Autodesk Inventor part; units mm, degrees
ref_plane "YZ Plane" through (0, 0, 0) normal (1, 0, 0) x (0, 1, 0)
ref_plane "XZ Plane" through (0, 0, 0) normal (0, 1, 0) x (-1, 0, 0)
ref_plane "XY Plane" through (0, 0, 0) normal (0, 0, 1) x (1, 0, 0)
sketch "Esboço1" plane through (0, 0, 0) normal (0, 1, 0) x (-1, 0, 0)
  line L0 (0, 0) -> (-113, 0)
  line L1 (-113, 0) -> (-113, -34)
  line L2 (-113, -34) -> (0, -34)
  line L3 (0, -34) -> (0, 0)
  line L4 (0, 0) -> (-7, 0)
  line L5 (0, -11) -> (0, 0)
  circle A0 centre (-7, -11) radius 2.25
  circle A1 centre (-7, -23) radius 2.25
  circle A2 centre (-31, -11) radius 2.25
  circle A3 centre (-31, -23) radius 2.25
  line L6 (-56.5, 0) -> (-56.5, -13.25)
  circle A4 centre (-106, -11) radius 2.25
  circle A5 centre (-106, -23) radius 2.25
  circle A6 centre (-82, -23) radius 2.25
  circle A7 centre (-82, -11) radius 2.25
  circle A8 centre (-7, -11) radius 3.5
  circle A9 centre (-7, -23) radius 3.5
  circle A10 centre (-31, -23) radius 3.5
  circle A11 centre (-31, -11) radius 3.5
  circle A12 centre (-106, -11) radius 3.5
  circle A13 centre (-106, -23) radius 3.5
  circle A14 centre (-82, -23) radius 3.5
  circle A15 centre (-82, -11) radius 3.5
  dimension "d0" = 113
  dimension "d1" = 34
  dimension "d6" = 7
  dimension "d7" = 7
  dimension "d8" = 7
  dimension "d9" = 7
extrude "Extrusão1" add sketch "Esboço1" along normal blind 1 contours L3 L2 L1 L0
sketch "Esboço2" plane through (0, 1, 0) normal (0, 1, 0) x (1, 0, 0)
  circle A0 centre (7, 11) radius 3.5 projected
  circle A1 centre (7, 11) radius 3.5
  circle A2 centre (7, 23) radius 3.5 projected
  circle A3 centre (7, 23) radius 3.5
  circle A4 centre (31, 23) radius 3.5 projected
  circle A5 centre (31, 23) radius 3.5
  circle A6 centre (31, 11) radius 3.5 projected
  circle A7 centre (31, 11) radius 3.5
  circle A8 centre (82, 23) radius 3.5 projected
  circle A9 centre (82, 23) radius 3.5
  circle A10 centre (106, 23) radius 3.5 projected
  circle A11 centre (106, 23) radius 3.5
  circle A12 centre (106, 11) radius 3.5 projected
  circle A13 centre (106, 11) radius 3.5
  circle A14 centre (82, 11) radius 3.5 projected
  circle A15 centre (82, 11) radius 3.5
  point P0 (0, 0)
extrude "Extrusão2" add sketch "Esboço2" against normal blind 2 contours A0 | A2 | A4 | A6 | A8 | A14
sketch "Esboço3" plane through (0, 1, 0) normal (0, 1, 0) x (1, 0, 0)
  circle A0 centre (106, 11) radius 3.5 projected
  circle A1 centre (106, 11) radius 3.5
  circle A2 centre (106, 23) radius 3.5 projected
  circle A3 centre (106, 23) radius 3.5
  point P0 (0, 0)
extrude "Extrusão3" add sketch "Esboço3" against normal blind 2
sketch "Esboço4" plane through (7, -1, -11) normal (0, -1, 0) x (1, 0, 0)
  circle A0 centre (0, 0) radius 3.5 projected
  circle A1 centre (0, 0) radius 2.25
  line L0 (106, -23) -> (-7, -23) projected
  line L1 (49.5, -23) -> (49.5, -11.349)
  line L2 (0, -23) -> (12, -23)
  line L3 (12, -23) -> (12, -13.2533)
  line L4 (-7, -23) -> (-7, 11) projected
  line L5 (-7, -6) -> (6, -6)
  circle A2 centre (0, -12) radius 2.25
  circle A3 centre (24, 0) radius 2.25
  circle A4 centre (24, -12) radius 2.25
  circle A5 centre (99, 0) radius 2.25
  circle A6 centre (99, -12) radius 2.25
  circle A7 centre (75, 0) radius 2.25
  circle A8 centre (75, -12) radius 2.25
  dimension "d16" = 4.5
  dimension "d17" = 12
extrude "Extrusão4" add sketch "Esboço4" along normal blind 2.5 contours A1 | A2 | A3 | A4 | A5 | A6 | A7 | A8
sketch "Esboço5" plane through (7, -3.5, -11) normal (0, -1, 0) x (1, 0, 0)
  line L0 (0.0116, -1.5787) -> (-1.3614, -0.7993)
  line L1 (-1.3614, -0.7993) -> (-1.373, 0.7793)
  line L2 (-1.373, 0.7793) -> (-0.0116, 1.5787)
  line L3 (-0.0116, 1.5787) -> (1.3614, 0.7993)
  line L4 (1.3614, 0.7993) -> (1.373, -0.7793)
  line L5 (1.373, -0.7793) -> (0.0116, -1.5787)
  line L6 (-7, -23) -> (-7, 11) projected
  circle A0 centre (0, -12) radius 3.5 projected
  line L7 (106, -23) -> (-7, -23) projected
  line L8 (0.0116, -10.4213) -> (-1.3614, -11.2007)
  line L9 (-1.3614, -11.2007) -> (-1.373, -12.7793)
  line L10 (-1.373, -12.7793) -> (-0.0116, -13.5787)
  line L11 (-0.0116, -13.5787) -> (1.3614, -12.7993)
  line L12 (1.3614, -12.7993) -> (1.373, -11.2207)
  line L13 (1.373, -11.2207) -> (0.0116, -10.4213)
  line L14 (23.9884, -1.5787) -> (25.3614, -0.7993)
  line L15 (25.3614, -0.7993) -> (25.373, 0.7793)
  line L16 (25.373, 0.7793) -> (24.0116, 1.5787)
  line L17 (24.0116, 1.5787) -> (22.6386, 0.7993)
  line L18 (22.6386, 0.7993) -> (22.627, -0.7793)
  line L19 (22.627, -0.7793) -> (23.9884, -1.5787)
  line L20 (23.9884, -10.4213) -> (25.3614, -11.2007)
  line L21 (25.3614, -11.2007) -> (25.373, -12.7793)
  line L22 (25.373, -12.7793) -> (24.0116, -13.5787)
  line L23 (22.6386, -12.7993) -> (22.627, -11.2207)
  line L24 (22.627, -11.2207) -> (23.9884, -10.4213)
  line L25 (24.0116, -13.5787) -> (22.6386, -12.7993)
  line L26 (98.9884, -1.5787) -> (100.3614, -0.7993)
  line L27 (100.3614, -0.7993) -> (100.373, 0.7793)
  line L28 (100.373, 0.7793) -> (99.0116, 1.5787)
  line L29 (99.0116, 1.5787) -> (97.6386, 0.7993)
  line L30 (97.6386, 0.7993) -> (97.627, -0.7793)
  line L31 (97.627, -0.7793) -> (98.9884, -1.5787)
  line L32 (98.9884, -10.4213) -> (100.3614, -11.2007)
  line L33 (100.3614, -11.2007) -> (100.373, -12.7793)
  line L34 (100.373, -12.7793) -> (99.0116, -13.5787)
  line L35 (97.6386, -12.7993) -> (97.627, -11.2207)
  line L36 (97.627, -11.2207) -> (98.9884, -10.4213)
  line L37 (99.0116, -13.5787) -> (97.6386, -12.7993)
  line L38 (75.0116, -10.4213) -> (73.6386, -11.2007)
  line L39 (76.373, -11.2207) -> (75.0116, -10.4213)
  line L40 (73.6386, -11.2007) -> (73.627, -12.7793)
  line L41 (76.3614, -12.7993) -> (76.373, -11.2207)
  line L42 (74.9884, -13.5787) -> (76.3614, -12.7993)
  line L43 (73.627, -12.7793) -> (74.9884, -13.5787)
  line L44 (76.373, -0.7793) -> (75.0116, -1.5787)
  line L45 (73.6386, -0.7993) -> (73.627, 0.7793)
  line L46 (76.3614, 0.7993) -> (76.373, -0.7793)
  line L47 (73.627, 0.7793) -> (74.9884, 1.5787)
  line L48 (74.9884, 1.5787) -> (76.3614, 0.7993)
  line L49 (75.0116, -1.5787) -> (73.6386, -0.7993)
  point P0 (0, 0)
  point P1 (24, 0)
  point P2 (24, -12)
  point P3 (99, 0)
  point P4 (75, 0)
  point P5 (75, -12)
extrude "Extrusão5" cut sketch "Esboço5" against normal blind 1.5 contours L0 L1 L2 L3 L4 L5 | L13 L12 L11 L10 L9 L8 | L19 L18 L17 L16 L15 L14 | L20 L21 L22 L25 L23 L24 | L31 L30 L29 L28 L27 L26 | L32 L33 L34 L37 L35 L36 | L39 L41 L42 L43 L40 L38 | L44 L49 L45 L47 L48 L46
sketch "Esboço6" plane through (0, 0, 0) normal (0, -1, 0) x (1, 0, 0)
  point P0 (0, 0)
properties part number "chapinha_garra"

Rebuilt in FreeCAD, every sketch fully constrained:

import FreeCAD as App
import Part
import Sketcher
Q = App.Units.Quantity

doc = App.newDocument("Part")
body = doc.addObject("PartDesign::Body", "Body")

# Sketch on XZ plane
sketch1 = body.newObject("Sketcher::SketchObject", "Sketch")
sketch1.AttachmentSupport = (doc.getObject("XZ_Plane"), [""])
sketch1.MapMode = "FlatFace"
sketch1.addGeometry([
    Part.LineSegment(App.Vector(0, -34, 0), App.Vector(0, 0, 0)),  # 0
    Part.LineSegment(App.Vector(0, 0, 0), App.Vector(113, 0, 0)),  # 1
    Part.LineSegment(App.Vector(113, 0, 0), App.Vector(113, -34, 0)),  # 2
    Part.LineSegment(App.Vector(113, -34, 0), App.Vector(0, -34, 0)),  # 3
    Part.Circle(App.Vector(106, -23, 0), App.Vector(0, 0, 1), 3.5),  # 4
    Part.Circle(App.Vector(82, -23, 0), App.Vector(0, 0, 1), 3.5),  # 5
    Part.Circle(App.Vector(31, -23, 0), App.Vector(0, 0, 1), 3.5),  # 6
    Part.Circle(App.Vector(7, -23, 0), App.Vector(0, 0, 1), 3.5),  # 7
    Part.Circle(App.Vector(106, -11, 0), App.Vector(0, 0, 1), 3.5),  # 8
    Part.Circle(App.Vector(82, -11, 0), App.Vector(0, 0, 1), 3.5),  # 9
    Part.Circle(App.Vector(31, -11, 0), App.Vector(0, 0, 1), 3.5),  # 10
    Part.Circle(App.Vector(7, -11, 0), App.Vector(0, 0, 1), 3.5),  # 11
], False)
sketch1.addConstraint([
    Sketcher.Constraint("Coincident", 0, 2, 1, 1),
    Sketcher.Constraint("Coincident", 1, 2, 2, 1),
    Sketcher.Constraint("Coincident", 2, 2, 3, 1),
    Sketcher.Constraint("Coincident", 3, 2, 0, 1),
    Sketcher.Constraint("Vertical", 0),
    Sketcher.Constraint("Horizontal", 1),
    Sketcher.Constraint("Vertical", 2),
    Sketcher.Constraint("Horizontal", 3),
    Sketcher.Constraint("Coincident", 0, 2, -1, 1),
    Sketcher.Constraint("Equal", 4, 5),
    Sketcher.Constraint("Equal", 5, 6),
    Sketcher.Constraint("Equal", 6, 7),
    Sketcher.Constraint("Equal", 7, 8),
    Sketcher.Constraint("Equal", 8, 9),
    Sketcher.Constraint("Equal", 9, 10),
    Sketcher.Constraint("Equal", 10, 11),
    Sketcher.Constraint("Horizontal", 4, 3, 5, 3),
    Sketcher.Constraint("Horizontal", 5, 3, 6, 3),
    Sketcher.Constraint("Horizontal", 6, 3, 7, 3),
    Sketcher.Constraint("Horizontal", 8, 3, 9, 3),
    Sketcher.Constraint("Horizontal", 9, 3, 10, 3),
    Sketcher.Constraint("Horizontal", 10, 3, 11, 3),
    Sketcher.Constraint("Vertical", 4, 3, 8, 3),
    Sketcher.Constraint("Vertical", 5, 3, 9, 3),
    Sketcher.Constraint("Vertical", 6, 3, 10, 3),
    Sketcher.Constraint("Vertical", 7, 3, 11, 3),
    Sketcher.Constraint("Diameter", 4, Q("7 mm")),
    Sketcher.Constraint("DistanceX", 1, 1, 1, 2, Q("113 mm")),
    Sketcher.Constraint("DistanceY", 0, 1, 0, 2, Q("34 mm")),
    Sketcher.Constraint("DistanceX", -1, 1, 7, 3, Q("7 mm")),
    Sketcher.Constraint("DistanceX", 8, 3, 1, 2, Q("7 mm")),
    Sketcher.Constraint("DistanceY", 4, 3, -1, 1, Q("23 mm")),
    Sketcher.Constraint("DistanceX", -1, 1, 5, 3, Q("82 mm")),
    Sketcher.Constraint("DistanceX", -1, 1, 6, 3, Q("31 mm")),
    Sketcher.Constraint("DistanceY", 8, 3, -1, 1, Q("11 mm")),
])
pad1 = body.newObject("PartDesign::Pad", "Pad")
pad1.Profile = sketch1
pad1.Length = 1
pad1.Reversed = True

# Sketch on XZ plane
sketch2 = body.newObject("Sketcher::SketchObject", "Sketch001")
sketch2.AttachmentSupport = (doc.getObject("XZ_Plane"), [""])
sketch2.MapMode = "FlatFace"
sketch2.AttachmentOffset = App.Placement(App.Vector(0, 0, -1), App.Rotation())
sketch2.addGeometry([
    Part.Circle(App.Vector(7, -11, 0), App.Vector(0, 0, 1), 3.5),  # 0
    Part.Circle(App.Vector(7, -23, 0), App.Vector(0, 0, 1), 3.5),  # 1
    Part.Circle(App.Vector(31, -23, 0), App.Vector(0, 0, 1), 3.5),  # 2
    Part.Circle(App.Vector(31, -11, 0), App.Vector(0, 0, 1), 3.5),  # 3
    Part.Circle(App.Vector(82, -23, 0), App.Vector(0, 0, 1), 3.5),  # 4
    Part.Circle(App.Vector(82, -11, 0), App.Vector(0, 0, 1), 3.5),  # 5
], False)
sketch2.addConstraint([
    Sketcher.Constraint("Equal", 0, 1),
    Sketcher.Constraint("Equal", 1, 2),
    Sketcher.Constraint("Equal", 2, 3),
    Sketcher.Constraint("Equal", 3, 4),
    Sketcher.Constraint("Equal", 4, 5),
    Sketcher.Constraint("Horizontal", 1, 3, 2, 3),
    Sketcher.Constraint("Horizontal", 0, 3, 3, 3),
    Sketcher.Constraint("Horizontal", 2, 3, 4, 3),
    Sketcher.Constraint("Horizontal", 3, 3, 5, 3),
    Sketcher.Constraint("Vertical", 0, 3, 1, 3),
    Sketcher.Constraint("Vertical", 2, 3, 3, 3),
    Sketcher.Constraint("Vertical", 4, 3, 5, 3),
    Sketcher.Constraint("Diameter", 0, Q("7 mm")),
    Sketcher.Constraint("DistanceX", -1, 1, 0, 3, Q("7 mm")),
    Sketcher.Constraint("DistanceY", 0, 3, -1, 1, Q("11 mm")),
    Sketcher.Constraint("DistanceY", 1, 3, -1, 1, Q("23 mm")),
    Sketcher.Constraint("DistanceX", -1, 1, 2, 3, Q("31 mm")),
    Sketcher.Constraint("DistanceX", -1, 1, 4, 3, Q("82 mm")),
])
pad2 = body.newObject("PartDesign::Pad", "Pad001")
pad2.Profile = sketch2
pad2.Length = 2

# Sketch on XZ plane
sketch3 = body.newObject("Sketcher::SketchObject", "Sketch002")
sketch3.AttachmentSupport = (doc.getObject("XZ_Plane"), [""])
sketch3.MapMode = "FlatFace"
sketch3.AttachmentOffset = App.Placement(App.Vector(0, 0, -1), App.Rotation())
sketch3.addGeometry([
    Part.Circle(App.Vector(106, -11, 0), App.Vector(0, 0, 1), 3.5),
    Part.Circle(App.Vector(106, -23, 0), App.Vector(0, 0, 1), 3.5),
], False)
sketch3.addConstraint([
    Sketcher.Constraint("Equal", 0, 1),
    Sketcher.Constraint("Vertical", 0, 3, 1, 3),
    Sketcher.Constraint("Diameter", 0, Q("7 mm")),
    Sketcher.Constraint("DistanceX", -1, 1, 0, 3, Q("106 mm")),
    Sketcher.Constraint("DistanceY", 0, 3, -1, 1, Q("11 mm")),
    Sketcher.Constraint("DistanceY", 1, 3, -1, 1, Q("23 mm")),
])
pad3 = body.newObject("PartDesign::Pad", "Pad002")
pad3.Profile = sketch3
pad3.Length = 2

# Sketch on XZ plane
sketch4 = body.newObject("Sketcher::SketchObject", "Sketch003")
sketch4.AttachmentSupport = (doc.getObject("XZ_Plane"), [""])
sketch4.MapMode = "FlatFace"
sketch4.AttachmentOffset = App.Placement(App.Vector(0, 0, 1), App.Rotation())
sketch4.addGeometry([
    Part.Circle(App.Vector(7, -11, 0), App.Vector(0, 0, 1), 2.2),  # 0
    Part.Circle(App.Vector(7, -23, 0), App.Vector(0, 0, 1), 2.2),  # 1
    Part.Circle(App.Vector(31, -11, 0), App.Vector(0, 0, 1), 2.2),  # 2
    Part.Circle(App.Vector(31, -23, 0), App.Vector(0, 0, 1), 2.2),  # 3
    Part.Circle(App.Vector(106, -11, 0), App.Vector(0, 0, 1), 2.2),  # 4
    Part.Circle(App.Vector(106, -23, 0), App.Vector(0, 0, 1), 2.2),  # 5
    Part.Circle(App.Vector(82, -11, 0), App.Vector(0, 0, 1), 2.2),  # 6
    Part.Circle(App.Vector(82, -23, 0), App.Vector(0, 0, 1), 2.2),  # 7
], False)
sketch4.addConstraint([
    Sketcher.Constraint("Equal", 0, 1),
    Sketcher.Constraint("Equal", 1, 2),
    Sketcher.Constraint("Equal", 2, 3),
    Sketcher.Constraint("Equal", 3, 4),
    Sketcher.Constraint("Equal", 4, 5),
    Sketcher.Constraint("Equal", 5, 6),
    Sketcher.Constraint("Equal", 6, 7),
    Sketcher.Constraint("Horizontal", 0, 3, 2, 3),
    Sketcher.Constraint("Horizontal", 1, 3, 3, 3),
    Sketcher.Constraint("Horizontal", 2, 3, 4, 3),
    Sketcher.Constraint("Horizontal", 3, 3, 5, 3),
    Sketcher.Constraint("Horizontal", 4, 3, 6, 3),
    Sketcher.Constraint("Horizontal", 5, 3, 7, 3),
    Sketcher.Constraint("Vertical", 0, 3, 1, 3),
    Sketcher.Constraint("Vertical", 2, 3, 3, 3),
    Sketcher.Constraint("Vertical", 4, 3, 5, 3),
    Sketcher.Constraint("Vertical", 6, 3, 7, 3),
    Sketcher.Constraint("Diameter", 0, Q("4.5 mm")),
    Sketcher.Constraint("DistanceY", 1, 3, 0, 3, Q("12 mm")),
    Sketcher.Constraint("DistanceX", -1, 1, 0, 3, Q("7 mm")),
    Sketcher.Constraint("DistanceY", 0, 3, -1, 1, Q("11 mm")),
    Sketcher.Constraint("DistanceX", -1, 1, 2, 3, Q("31 mm")),
    Sketcher.Constraint("DistanceX", -1, 1, 4, 3, Q("106 mm")),
    Sketcher.Constraint("DistanceX", -1, 1, 6, 3, Q("82 mm")),
])
pad4 = body.newObject("PartDesign::Pad", "Pad003")
pad4.Profile = sketch4
pad4.Length = 2.5

# Sketch on XZ plane
sketch5 = body.newObject("Sketcher::SketchObject", "Sketch004")
sketch5.AttachmentSupport = (doc.getObject("XZ_Plane"), [""])
sketch5.MapMode = "FlatFace"
sketch5.AttachmentOffset = App.Placement(App.Vector(0, 0, 3.5), App.Rotation())
sketch5.addGeometry([
    Part.LineSegment(App.Vector(5.6386, -11.7993, 0), App.Vector(7.0116, -12.5787, 0)),  # 0
    Part.LineSegment(App.Vector(7.0116, -12.5787, 0), App.Vector(8.373, -11.7793, 0)),  # 1
    Part.LineSegment(App.Vector(8.373, -11.7793, 0), App.Vector(8.3614, -10.2007, 0)),  # 2
    Part.LineSegment(App.Vector(8.3614, -10.2007, 0), App.Vector(6.9884, -9.4213, 0)),  # 3
    Part.LineSegment(App.Vector(6.9884, -9.4213, 0), App.Vector(5.627, -10.2207, 0)),  # 4
    Part.LineSegment(App.Vector(5.627, -10.2207, 0), App.Vector(5.6386, -11.7993, 0)),  # 5
    Part.LineSegment(App.Vector(8.373, -22.2207, 0), App.Vector(7.0116, -21.4213, 0)),  # 6
    Part.LineSegment(App.Vector(7.0116, -21.4213, 0), App.Vector(5.6386, -22.2007, 0)),  # 7
    Part.LineSegment(App.Vector(5.6386, -22.2007, 0), App.Vector(5.627, -23.7793, 0)),  # 8
    Part.LineSegment(App.Vector(5.627, -23.7793, 0), App.Vector(6.9884, -24.5787, 0)),  # 9
    Part.LineSegment(App.Vector(6.9884, -24.5787, 0), App.Vector(8.3614, -23.7993, 0)),  # 10
    Part.LineSegment(App.Vector(8.3614, -23.7993, 0), App.Vector(8.373, -22.2207, 0)),  # 11
    Part.LineSegment(App.Vector(29.627, -11.7793, 0), App.Vector(30.9884, -12.5787, 0)),  # 12
    Part.LineSegment(App.Vector(30.9884, -12.5787, 0), App.Vector(32.3614, -11.7993, 0)),  # 13
    Part.LineSegment(App.Vector(32.3614, -11.7993, 0), App.Vector(32.373, -10.2207, 0)),  # 14
    Part.LineSegment(App.Vector(32.373, -10.2207, 0), App.Vector(31.0116, -9.4213, 0)),  # 15
    Part.LineSegment(App.Vector(31.0116, -9.4213, 0), App.Vector(29.6386, -10.2007, 0)),  # 16
    Part.LineSegment(App.Vector(29.6386, -10.2007, 0), App.Vector(29.627, -11.7793, 0)),  # 17
    Part.LineSegment(App.Vector(32.3614, -22.2007, 0), App.Vector(30.9884, -21.4213, 0)),  # 18
    Part.LineSegment(App.Vector(30.9884, -21.4213, 0), App.Vector(29.627, -22.2207, 0)),  # 19
    Part.LineSegment(App.Vector(29.627, -22.2207, 0), App.Vector(29.6386, -23.7993, 0)),  # 20
    Part.LineSegment(App.Vector(29.6386, -23.7993, 0), App.Vector(31.0116, -24.5787, 0)),  # 21
    Part.LineSegment(App.Vector(31.0116, -24.5787, 0), App.Vector(32.373, -23.7793, 0)),  # 22
    Part.LineSegment(App.Vector(32.373, -23.7793, 0), App.Vector(32.3614, -22.2007, 0)),  # 23
    Part.LineSegment(App.Vector(104.627, -11.7793, 0), App.Vector(105.9884, -12.5787, 0)),  # 24
    Part.LineSegment(App.Vector(105.9884, -12.5787, 0), App.Vector(107.3614, -11.7993, 0)),  # 25
    Part.LineSegment(App.Vector(107.3614, -11.7993, 0), App.Vector(107.373, -10.2207, 0)),  # 26
    Part.LineSegment(App.Vector(107.373, -10.2207, 0), App.Vector(106.0116, -9.4213, 0)),  # 27
    Part.LineSegment(App.Vector(106.0116, -9.4213, 0), App.Vector(104.6386, -10.2007, 0)),  # 28
    Part.LineSegment(App.Vector(104.6386, -10.2007, 0), App.Vector(104.627, -11.7793, 0)),  # 29
    Part.LineSegment(App.Vector(107.3614, -22.2007, 0), App.Vector(105.9884, -21.4213, 0)),  # 30
    Part.LineSegment(App.Vector(105.9884, -21.4213, 0), App.Vector(104.627, -22.2207, 0)),  # 31
    Part.LineSegment(App.Vector(104.627, -22.2207, 0), App.Vector(104.6386, -23.7993, 0)),  # 32
    Part.LineSegment(App.Vector(104.6386, -23.7993, 0), App.Vector(106.0116, -24.5787, 0)),  # 33
    Part.LineSegment(App.Vector(106.0116, -24.5787, 0), App.Vector(107.373, -23.7793, 0)),  # 34
    Part.LineSegment(App.Vector(107.373, -23.7793, 0), App.Vector(107.3614, -22.2007, 0)),  # 35
    Part.LineSegment(App.Vector(83.373, -22.2207, 0), App.Vector(82.0116, -21.4213, 0)),  # 36
    Part.LineSegment(App.Vector(82.0116, -21.4213, 0), App.Vector(80.6386, -22.2007, 0)),  # 37
    Part.LineSegment(App.Vector(80.6386, -22.2007, 0), App.Vector(80.627, -23.7793, 0)),  # 38
    Part.LineSegment(App.Vector(80.627, -23.7793, 0), App.Vector(81.9884, -24.5787, 0)),  # 39
    Part.LineSegment(App.Vector(81.9884, -24.5787, 0), App.Vector(83.3614, -23.7993, 0)),  # 40
    Part.LineSegment(App.Vector(83.3614, -23.7993, 0), App.Vector(83.373, -22.2207, 0)),  # 41
    Part.LineSegment(App.Vector(82.0116, -12.5787, 0), App.Vector(83.373, -11.7793, 0)),  # 42
    Part.LineSegment(App.Vector(83.373, -11.7793, 0), App.Vector(83.3614, -10.2007, 0)),  # 43
    Part.LineSegment(App.Vector(83.3614, -10.2007, 0), App.Vector(81.9884, -9.4213, 0)),  # 44
    Part.LineSegment(App.Vector(81.9884, -9.4213, 0), App.Vector(80.627, -10.2207, 0)),  # 45
    Part.LineSegment(App.Vector(80.627, -10.2207, 0), App.Vector(80.6386, -11.7993, 0)),  # 46
    Part.LineSegment(App.Vector(80.6386, -11.7993, 0), App.Vector(82.0116, -12.5787, 0)),  # 47
], False)
sketch5.addConstraint([
    Sketcher.Constraint("Coincident", 0, 2, 1, 1),
    Sketcher.Constraint("Coincident", 1, 2, 2, 1),
    Sketcher.Constraint("Coincident", 2, 2, 3, 1),
    Sketcher.Constraint("Coincident", 3, 2, 4, 1),
    Sketcher.Constraint("Coincident", 4, 2, 5, 1),
    Sketcher.Constraint("Coincident", 5, 2, 0, 1),
    Sketcher.Constraint("Coincident", 6, 2, 7, 1),
    Sketcher.Constraint("Coincident", 7, 2, 8, 1),
    Sketcher.Constraint("Coincident", 8, 2, 9, 1),
    Sketcher.Constraint("Coincident", 9, 2, 10, 1),
    Sketcher.Constraint("Coincident", 10, 2, 11, 1),
    Sketcher.Constraint("Coincident", 11, 2, 6, 1),
    Sketcher.Constraint("Coincident", 12, 2, 13, 1),
    Sketcher.Constraint("Coincident", 13, 2, 14, 1),
    Sketcher.Constraint("Coincident", 14, 2, 15, 1),
    Sketcher.Constraint("Coincident", 15, 2, 16, 1),
    Sketcher.Constraint("Coincident", 16, 2, 17, 1),
    Sketcher.Constraint("Coincident", 17, 2, 12, 1),
    Sketcher.Constraint("Coincident", 18, 2, 19, 1),
    Sketcher.Constraint("Coincident", 19, 2, 20, 1),
    Sketcher.Constraint("Coincident", 20, 2, 21, 1),
    Sketcher.Constraint("Coincident", 21, 2, 22, 1),
    Sketcher.Constraint("Coincident", 22, 2, 23, 1),
    Sketcher.Constraint("Coincident", 23, 2, 18, 1),
    Sketcher.Constraint("Coincident", 24, 2, 25, 1),
    Sketcher.Constraint("Coincident", 25, 2, 26, 1),
    Sketcher.Constraint("Coincident", 26, 2, 27, 1),
    Sketcher.Constraint("Coincident", 27, 2, 28, 1),
    Sketcher.Constraint("Coincident", 28, 2, 29, 1),
    Sketcher.Constraint("Coincident", 29, 2, 24, 1),
    Sketcher.Constraint("Coincident", 30, 2, 31, 1),
    Sketcher.Constraint("Coincident", 31, 2, 32, 1),
    Sketcher.Constraint("Coincident", 32, 2, 33, 1),
    Sketcher.Constraint("Coincident", 33, 2, 34, 1),
    Sketcher.Constraint("Coincident", 34, 2, 35, 1),
    Sketcher.Constraint("Coincident", 35, 2, 30, 1),
    Sketcher.Constraint("Coincident", 36, 2, 37, 1),
    Sketcher.Constraint("Coincident", 37, 2, 38, 1),
    Sketcher.Constraint("Coincident", 38, 2, 39, 1),
    Sketcher.Constraint("Coincident", 39, 2, 40, 1),
    Sketcher.Constraint("Coincident", 40, 2, 41, 1),
    Sketcher.Constraint("Coincident", 41, 2, 36, 1),
    Sketcher.Constraint("Coincident", 42, 2, 43, 1),
    Sketcher.Constraint("Coincident", 43, 2, 44, 1),
    Sketcher.Constraint("Coincident", 44, 2, 45, 1),
    Sketcher.Constraint("Coincident", 45, 2, 46, 1),
    Sketcher.Constraint("Coincident", 46, 2, 47, 1),
    Sketcher.Constraint("Coincident", 47, 2, 42, 1),
    Sketcher.Constraint("Parallel", 0, 3),
    Sketcher.Constraint("Parallel", 1, 4),
    Sketcher.Constraint("Parallel", 2, 5),
    Sketcher.Constraint("Parallel", 6, 9),
    Sketcher.Constraint("Parallel", 7, 10),
    Sketcher.Constraint("Parallel", 8, 11),
    Sketcher.Constraint("Parallel", 9, 12),
    Sketcher.Constraint("Parallel", 10, 13),
    Sketcher.Constraint("Parallel", 11, 14),
    Sketcher.Constraint("Parallel", 12, 15),
    Sketcher.Constraint("Parallel", 13, 16),
    Sketcher.Constraint("Parallel", 14, 17),
    Sketcher.Constraint("Parallel", 3, 18),
    Sketcher.Constraint("Parallel", 4, 19),
    Sketcher.Constraint("Parallel", 5, 20),
    Sketcher.Constraint("Parallel", 18, 21),
    Sketcher.Constraint("Parallel", 19, 22),
    Sketcher.Constraint("Parallel", 20, 23),
    Sketcher.Constraint("Parallel", 15, 24),
    Sketcher.Constraint("Parallel", 16, 25),
    Sketcher.Constraint("Parallel", 17, 26),
    Sketcher.Constraint("Parallel", 24, 27),
    Sketcher.Constraint("Parallel", 25, 28),
    Sketcher.Constraint("Parallel", 26, 29),
    Sketcher.Constraint("Parallel", 21, 30),
    Sketcher.Constraint("Parallel", 22, 31),
    Sketcher.Constraint("Parallel", 23, 32),
    Sketcher.Constraint("Parallel", 30, 33),
    Sketcher.Constraint("Parallel", 31, 34),
    Sketcher.Constraint("Parallel", 32, 35),
    Sketcher.Constraint("Parallel", 27, 36),
    Sketcher.Constraint("Parallel", 28, 37),
    Sketcher.Constraint("Parallel", 29, 38),
    Sketcher.Constraint("Parallel", 36, 39),
    Sketcher.Constraint("Parallel", 37, 40),
    Sketcher.Constraint("Parallel", 38, 41),
    Sketcher.Constraint("Parallel", 34, 42),
    Sketcher.Constraint("Parallel", 35, 43),
    Sketcher.Constraint("Parallel", 33, 44),
    Sketcher.Constraint("Parallel", 42, 45),
    Sketcher.Constraint("Parallel", 43, 46),
    Sketcher.Constraint("Parallel", 44, 47),
    Sketcher.Constraint("Horizontal", 0, 2, 12, 2),
    Sketcher.Constraint("Horizontal", 5, 2, 13, 2),
    Sketcher.Constraint("Horizontal", 4, 2, 14, 2),
    Sketcher.Constraint("Horizontal", 3, 2, 15, 2),
    Sketcher.Constraint("Horizontal", 2, 2, 16, 2),
    Sketcher.Constraint("Horizontal", 6, 2, 18, 2),
    Sketcher.Constraint("Horizontal", 11, 2, 19, 2),
    Sketcher.Constraint("Horizontal", 10, 2, 20, 2),
    Sketcher.Constraint("Horizontal", 9, 2, 21, 2),
    Sketcher.Constraint("Horizontal", 8, 2, 22, 2),
    Sketcher.Constraint("Horizontal", 12, 2, 24, 2),
    Sketcher.Constraint("Horizontal", 13, 2, 25, 2),
    Sketcher.Constraint("Horizontal", 14, 2, 26, 2),
    Sketcher.Constraint("Horizontal", 15, 2, 27, 2),
    Sketcher.Constraint("Horizontal", 16, 2, 28, 2),
    Sketcher.Constraint("Horizontal", 18, 2, 30, 2),
    Sketcher.Constraint("Horizontal", 19, 2, 31, 2),
    Sketcher.Constraint("Horizontal", 20, 2, 32, 2),
    Sketcher.Constraint("Horizontal", 21, 2, 33, 2),
    Sketcher.Constraint("Horizontal", 22, 2, 34, 2),
    Sketcher.Constraint("Horizontal", 30, 2, 36, 2),
    Sketcher.Constraint("Horizontal", 35, 2, 37, 2),
    Sketcher.Constraint("Horizontal", 34, 2, 38, 2),
    Sketcher.Constraint("Horizontal", 33, 2, 39, 2),
    Sketcher.Constraint("Horizontal", 32, 2, 40, 2),
    Sketcher.Constraint("Horizontal", 29, 2, 42, 2),
    Sketcher.Constraint("Horizontal", 28, 2, 43, 2),
    Sketcher.Constraint("Horizontal", 27, 2, 44, 2),
    Sketcher.Constraint("Horizontal", 26, 2, 45, 2),
    Sketcher.Constraint("Horizontal", 25, 2, 46, 2),
    Sketcher.Constraint("Vertical", 0, 2, 6, 2),
    Sketcher.Constraint("Vertical", 5, 2, 7, 2),
    Sketcher.Constraint("Vertical", 4, 2, 8, 2),
    Sketcher.Constraint("Vertical", 3, 2, 9, 2),
    Sketcher.Constraint("Vertical", 2, 2, 10, 2),
    Sketcher.Constraint("Vertical", 12, 2, 18, 2),
    Sketcher.Constraint("Vertical", 17, 2, 19, 2),
    Sketcher.Constraint("Vertical", 16, 2, 20, 2),
    Sketcher.Constraint("Vertical", 15, 2, 21, 2),
    Sketcher.Constraint("Vertical", 24, 2, 30, 2),
    Sketcher.Constraint("Vertical", 41, 2, 42, 2),
    Sketcher.Constraint("Equal", 0, 1),
    Sketcher.Constraint("Equal", 1, 2),
    Sketcher.Constraint("Equal", 2, 3),
    Sketcher.Constraint("DistanceY", 8, 2, 1, 2, Q("12 mm")),
    Sketcher.Constraint("DistanceX", 3, 2, 12, 2, Q("24 mm")),
    Sketcher.Constraint("DistanceX", 12, 2, 24, 2, Q("75 mm")),
    Sketcher.Constraint("DistanceX", 36, 2, 33, 2, Q("24 mm")),
    Sketcher.Constraint("Angle", 1, Q("30.421 deg")),
    Sketcher.Constraint("Angle", 2, Q("90.421 deg")),
    Sketcher.Constraint("DistanceY", 4, 2, 2, 2, Q("0.02 mm")),
    Sketcher.Constraint("DistanceX", -1, 1, 1, 2, Q("8.373 mm")),
    Sketcher.Constraint("DistanceX", -1, 1, 4, 2, Q("5.627 mm")),
    Sketcher.Constraint("DistanceY", 0, 2, -1, 1, Q("12.5787 mm")),
])
pocket1 = body.newObject("PartDesign::Pocket", "Pocket")
pocket1.Profile = sketch5
pocket1.Length = 1.5

doc.recompute()
